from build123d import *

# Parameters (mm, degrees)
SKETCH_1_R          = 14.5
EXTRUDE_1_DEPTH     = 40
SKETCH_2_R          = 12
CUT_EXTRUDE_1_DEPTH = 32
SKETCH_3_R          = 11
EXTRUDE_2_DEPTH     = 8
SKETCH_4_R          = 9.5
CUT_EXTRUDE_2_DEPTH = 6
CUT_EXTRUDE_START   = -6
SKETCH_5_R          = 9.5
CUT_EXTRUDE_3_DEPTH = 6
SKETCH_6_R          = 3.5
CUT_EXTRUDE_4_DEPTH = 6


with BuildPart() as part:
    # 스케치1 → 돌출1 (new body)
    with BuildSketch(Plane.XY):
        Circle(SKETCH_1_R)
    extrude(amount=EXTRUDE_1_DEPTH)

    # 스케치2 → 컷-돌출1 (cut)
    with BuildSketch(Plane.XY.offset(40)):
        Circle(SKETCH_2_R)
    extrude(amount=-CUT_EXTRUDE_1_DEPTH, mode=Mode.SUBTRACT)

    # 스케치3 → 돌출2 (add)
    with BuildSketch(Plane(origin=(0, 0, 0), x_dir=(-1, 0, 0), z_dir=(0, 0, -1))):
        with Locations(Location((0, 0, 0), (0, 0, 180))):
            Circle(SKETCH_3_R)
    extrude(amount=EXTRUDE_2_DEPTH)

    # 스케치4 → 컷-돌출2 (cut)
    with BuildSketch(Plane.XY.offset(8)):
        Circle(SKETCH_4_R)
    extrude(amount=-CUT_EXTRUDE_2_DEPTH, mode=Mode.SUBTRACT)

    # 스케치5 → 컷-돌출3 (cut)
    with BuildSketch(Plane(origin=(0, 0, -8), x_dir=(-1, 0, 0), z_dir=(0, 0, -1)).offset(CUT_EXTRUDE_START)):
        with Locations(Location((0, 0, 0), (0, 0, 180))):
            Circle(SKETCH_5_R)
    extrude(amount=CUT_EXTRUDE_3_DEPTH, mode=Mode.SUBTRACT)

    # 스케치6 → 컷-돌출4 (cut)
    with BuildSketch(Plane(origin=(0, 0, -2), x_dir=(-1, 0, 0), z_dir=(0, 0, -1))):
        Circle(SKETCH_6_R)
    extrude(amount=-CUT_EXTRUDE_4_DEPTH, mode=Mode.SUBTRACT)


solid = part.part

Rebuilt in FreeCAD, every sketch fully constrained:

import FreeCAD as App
import Part
import Sketcher
from FreeCAD import Vector
Q = App.Units.Quantity

doc = App.newDocument("Part")
body = doc.addObject("PartDesign::Body", "Body")

sketch1 = doc.addObject("Sketcher::SketchObject", "Sketch")
body.addObject(sketch1)
sketch1.AttachmentSupport = (doc.XY_Plane, [""])
sketch1.MapMode = "FlatFace"
sketch1.addGeometry(Part.Circle(Vector(0, 0, 0), Vector(0, 0, 1), 14), False)
sketch1.addConstraint(Sketcher.Constraint("Coincident", 0, 3, -1, 1))
sketch1.addConstraint(Sketcher.Constraint("Diameter", 0, Q("29 mm")))
pad1 = doc.addObject("PartDesign::Pad", "Pad")
body.addObject(pad1)
pad1.Profile = sketch1
pad1.Length = 40

sketch2 = doc.addObject("Sketcher::SketchObject", "Sketch001")
body.addObject(sketch2)
sketch2.AttachmentSupport = (doc.XY_Plane, [""])
sketch2.MapMode = "FlatFace"
sketch2.AttachmentOffset = App.Placement(Vector(0, 0, 40), App.Rotation())
sketch2.addGeometry(Part.Circle(Vector(0, 0, 0), Vector(0, 0, 1), 12), False)
sketch2.addConstraint(Sketcher.Constraint("Coincident", 0, 3, -1, 1))
sketch2.addConstraint(Sketcher.Constraint("Diameter", 0, Q("24 mm")))
pocket1 = doc.addObject("PartDesign::Pocket", "Pocket")
body.addObject(pocket1)
pocket1.Profile = sketch2
pocket1.Length = 32

sketch3 = doc.addObject("Sketcher::SketchObject", "Sketch002")
body.addObject(sketch3)
sketch3.AttachmentSupport = (doc.XY_Plane, [""])
sketch3.MapMode = "FlatFace"
sketch3.addGeometry(Part.Circle(Vector(0, 0, 0), Vector(0, 0, 1), 11), False)
sketch3.addConstraint(Sketcher.Constraint("Coincident", 0, 3, -1, 1))
sketch3.addConstraint(Sketcher.Constraint("Diameter", 0, Q("22 mm")))
pad2 = doc.addObject("PartDesign::Pad", "Pad001")
body.addObject(pad2)
pad2.Profile = sketch3
pad2.Length = 8
pad2.Reversed = True

sketch4 = doc.addObject("Sketcher::SketchObject", "Sketch003")
body.addObject(sketch4)
sketch4.AttachmentSupport = (doc.XY_Plane, [""])
sketch4.MapMode = "FlatFace"
sketch4.AttachmentOffset = App.Placement(Vector(0, 0, 8), App.Rotation())
sketch4.addGeometry(Part.Circle(Vector(0, 0, 0), Vector(0, 0, 1), 10), False)
sketch4.addConstraint(Sketcher.Constraint("Coincident", 0, 3, -1, 1))
sketch4.addConstraint(Sketcher.Constraint("Diameter", 0, Q("19 mm")))
pocket2 = doc.addObject("PartDesign::Pocket", "Pocket001")
body.addObject(pocket2)
pocket2.Profile = sketch4
pocket2.Length = 6

sketch5 = doc.addObject("Sketcher::SketchObject", "Sketch004")
body.addObject(sketch5)
sketch5.AttachmentSupport = (doc.XY_Plane, [""])
sketch5.MapMode = "FlatFace"
sketch5.AttachmentOffset = App.Placement(Vector(0, 0, -2), App.Rotation())
sketch5.addGeometry(Part.Circle(Vector(0, 0, 0), Vector(0, 0, 1), 10), False)
sketch5.addConstraint(Sketcher.Constraint("Coincident", 0, 3, -1, 1))
sketch5.addConstraint(Sketcher.Constraint("Diameter", 0, Q("19 mm")))
pocket3 = doc.addObject("PartDesign::Pocket", "Pocket002")
body.addObject(pocket3)
pocket3.Profile = sketch5
pocket3.Length = 6

sketch6 = doc.addObject("Sketcher::SketchObject", "Sketch005")
body.addObject(sketch6)
sketch6.AttachmentSupport = (doc.XY_Plane, [""])
sketch6.MapMode = "FlatFace"
sketch6.AttachmentOffset = App.Placement(Vector(0, 0, -2), App.Rotation())
sketch6.addGeometry(Part.Circle(Vector(0, 0, 0), Vector(0, 0, 1), 3.5), False)
sketch6.addConstraint(Sketcher.Constraint("Coincident", 0, 3, -1, 1))
sketch6.addConstraint(Sketcher.Constraint("Diameter", 0, Q("7 mm")))
pocket4 = doc.addObject("PartDesign::Pocket", "Pocket003")
body.addObject(pocket4)
pocket4.Profile = sketch6
pocket4.Length = 6
pocket4.Reversed = True

doc.recompute()
